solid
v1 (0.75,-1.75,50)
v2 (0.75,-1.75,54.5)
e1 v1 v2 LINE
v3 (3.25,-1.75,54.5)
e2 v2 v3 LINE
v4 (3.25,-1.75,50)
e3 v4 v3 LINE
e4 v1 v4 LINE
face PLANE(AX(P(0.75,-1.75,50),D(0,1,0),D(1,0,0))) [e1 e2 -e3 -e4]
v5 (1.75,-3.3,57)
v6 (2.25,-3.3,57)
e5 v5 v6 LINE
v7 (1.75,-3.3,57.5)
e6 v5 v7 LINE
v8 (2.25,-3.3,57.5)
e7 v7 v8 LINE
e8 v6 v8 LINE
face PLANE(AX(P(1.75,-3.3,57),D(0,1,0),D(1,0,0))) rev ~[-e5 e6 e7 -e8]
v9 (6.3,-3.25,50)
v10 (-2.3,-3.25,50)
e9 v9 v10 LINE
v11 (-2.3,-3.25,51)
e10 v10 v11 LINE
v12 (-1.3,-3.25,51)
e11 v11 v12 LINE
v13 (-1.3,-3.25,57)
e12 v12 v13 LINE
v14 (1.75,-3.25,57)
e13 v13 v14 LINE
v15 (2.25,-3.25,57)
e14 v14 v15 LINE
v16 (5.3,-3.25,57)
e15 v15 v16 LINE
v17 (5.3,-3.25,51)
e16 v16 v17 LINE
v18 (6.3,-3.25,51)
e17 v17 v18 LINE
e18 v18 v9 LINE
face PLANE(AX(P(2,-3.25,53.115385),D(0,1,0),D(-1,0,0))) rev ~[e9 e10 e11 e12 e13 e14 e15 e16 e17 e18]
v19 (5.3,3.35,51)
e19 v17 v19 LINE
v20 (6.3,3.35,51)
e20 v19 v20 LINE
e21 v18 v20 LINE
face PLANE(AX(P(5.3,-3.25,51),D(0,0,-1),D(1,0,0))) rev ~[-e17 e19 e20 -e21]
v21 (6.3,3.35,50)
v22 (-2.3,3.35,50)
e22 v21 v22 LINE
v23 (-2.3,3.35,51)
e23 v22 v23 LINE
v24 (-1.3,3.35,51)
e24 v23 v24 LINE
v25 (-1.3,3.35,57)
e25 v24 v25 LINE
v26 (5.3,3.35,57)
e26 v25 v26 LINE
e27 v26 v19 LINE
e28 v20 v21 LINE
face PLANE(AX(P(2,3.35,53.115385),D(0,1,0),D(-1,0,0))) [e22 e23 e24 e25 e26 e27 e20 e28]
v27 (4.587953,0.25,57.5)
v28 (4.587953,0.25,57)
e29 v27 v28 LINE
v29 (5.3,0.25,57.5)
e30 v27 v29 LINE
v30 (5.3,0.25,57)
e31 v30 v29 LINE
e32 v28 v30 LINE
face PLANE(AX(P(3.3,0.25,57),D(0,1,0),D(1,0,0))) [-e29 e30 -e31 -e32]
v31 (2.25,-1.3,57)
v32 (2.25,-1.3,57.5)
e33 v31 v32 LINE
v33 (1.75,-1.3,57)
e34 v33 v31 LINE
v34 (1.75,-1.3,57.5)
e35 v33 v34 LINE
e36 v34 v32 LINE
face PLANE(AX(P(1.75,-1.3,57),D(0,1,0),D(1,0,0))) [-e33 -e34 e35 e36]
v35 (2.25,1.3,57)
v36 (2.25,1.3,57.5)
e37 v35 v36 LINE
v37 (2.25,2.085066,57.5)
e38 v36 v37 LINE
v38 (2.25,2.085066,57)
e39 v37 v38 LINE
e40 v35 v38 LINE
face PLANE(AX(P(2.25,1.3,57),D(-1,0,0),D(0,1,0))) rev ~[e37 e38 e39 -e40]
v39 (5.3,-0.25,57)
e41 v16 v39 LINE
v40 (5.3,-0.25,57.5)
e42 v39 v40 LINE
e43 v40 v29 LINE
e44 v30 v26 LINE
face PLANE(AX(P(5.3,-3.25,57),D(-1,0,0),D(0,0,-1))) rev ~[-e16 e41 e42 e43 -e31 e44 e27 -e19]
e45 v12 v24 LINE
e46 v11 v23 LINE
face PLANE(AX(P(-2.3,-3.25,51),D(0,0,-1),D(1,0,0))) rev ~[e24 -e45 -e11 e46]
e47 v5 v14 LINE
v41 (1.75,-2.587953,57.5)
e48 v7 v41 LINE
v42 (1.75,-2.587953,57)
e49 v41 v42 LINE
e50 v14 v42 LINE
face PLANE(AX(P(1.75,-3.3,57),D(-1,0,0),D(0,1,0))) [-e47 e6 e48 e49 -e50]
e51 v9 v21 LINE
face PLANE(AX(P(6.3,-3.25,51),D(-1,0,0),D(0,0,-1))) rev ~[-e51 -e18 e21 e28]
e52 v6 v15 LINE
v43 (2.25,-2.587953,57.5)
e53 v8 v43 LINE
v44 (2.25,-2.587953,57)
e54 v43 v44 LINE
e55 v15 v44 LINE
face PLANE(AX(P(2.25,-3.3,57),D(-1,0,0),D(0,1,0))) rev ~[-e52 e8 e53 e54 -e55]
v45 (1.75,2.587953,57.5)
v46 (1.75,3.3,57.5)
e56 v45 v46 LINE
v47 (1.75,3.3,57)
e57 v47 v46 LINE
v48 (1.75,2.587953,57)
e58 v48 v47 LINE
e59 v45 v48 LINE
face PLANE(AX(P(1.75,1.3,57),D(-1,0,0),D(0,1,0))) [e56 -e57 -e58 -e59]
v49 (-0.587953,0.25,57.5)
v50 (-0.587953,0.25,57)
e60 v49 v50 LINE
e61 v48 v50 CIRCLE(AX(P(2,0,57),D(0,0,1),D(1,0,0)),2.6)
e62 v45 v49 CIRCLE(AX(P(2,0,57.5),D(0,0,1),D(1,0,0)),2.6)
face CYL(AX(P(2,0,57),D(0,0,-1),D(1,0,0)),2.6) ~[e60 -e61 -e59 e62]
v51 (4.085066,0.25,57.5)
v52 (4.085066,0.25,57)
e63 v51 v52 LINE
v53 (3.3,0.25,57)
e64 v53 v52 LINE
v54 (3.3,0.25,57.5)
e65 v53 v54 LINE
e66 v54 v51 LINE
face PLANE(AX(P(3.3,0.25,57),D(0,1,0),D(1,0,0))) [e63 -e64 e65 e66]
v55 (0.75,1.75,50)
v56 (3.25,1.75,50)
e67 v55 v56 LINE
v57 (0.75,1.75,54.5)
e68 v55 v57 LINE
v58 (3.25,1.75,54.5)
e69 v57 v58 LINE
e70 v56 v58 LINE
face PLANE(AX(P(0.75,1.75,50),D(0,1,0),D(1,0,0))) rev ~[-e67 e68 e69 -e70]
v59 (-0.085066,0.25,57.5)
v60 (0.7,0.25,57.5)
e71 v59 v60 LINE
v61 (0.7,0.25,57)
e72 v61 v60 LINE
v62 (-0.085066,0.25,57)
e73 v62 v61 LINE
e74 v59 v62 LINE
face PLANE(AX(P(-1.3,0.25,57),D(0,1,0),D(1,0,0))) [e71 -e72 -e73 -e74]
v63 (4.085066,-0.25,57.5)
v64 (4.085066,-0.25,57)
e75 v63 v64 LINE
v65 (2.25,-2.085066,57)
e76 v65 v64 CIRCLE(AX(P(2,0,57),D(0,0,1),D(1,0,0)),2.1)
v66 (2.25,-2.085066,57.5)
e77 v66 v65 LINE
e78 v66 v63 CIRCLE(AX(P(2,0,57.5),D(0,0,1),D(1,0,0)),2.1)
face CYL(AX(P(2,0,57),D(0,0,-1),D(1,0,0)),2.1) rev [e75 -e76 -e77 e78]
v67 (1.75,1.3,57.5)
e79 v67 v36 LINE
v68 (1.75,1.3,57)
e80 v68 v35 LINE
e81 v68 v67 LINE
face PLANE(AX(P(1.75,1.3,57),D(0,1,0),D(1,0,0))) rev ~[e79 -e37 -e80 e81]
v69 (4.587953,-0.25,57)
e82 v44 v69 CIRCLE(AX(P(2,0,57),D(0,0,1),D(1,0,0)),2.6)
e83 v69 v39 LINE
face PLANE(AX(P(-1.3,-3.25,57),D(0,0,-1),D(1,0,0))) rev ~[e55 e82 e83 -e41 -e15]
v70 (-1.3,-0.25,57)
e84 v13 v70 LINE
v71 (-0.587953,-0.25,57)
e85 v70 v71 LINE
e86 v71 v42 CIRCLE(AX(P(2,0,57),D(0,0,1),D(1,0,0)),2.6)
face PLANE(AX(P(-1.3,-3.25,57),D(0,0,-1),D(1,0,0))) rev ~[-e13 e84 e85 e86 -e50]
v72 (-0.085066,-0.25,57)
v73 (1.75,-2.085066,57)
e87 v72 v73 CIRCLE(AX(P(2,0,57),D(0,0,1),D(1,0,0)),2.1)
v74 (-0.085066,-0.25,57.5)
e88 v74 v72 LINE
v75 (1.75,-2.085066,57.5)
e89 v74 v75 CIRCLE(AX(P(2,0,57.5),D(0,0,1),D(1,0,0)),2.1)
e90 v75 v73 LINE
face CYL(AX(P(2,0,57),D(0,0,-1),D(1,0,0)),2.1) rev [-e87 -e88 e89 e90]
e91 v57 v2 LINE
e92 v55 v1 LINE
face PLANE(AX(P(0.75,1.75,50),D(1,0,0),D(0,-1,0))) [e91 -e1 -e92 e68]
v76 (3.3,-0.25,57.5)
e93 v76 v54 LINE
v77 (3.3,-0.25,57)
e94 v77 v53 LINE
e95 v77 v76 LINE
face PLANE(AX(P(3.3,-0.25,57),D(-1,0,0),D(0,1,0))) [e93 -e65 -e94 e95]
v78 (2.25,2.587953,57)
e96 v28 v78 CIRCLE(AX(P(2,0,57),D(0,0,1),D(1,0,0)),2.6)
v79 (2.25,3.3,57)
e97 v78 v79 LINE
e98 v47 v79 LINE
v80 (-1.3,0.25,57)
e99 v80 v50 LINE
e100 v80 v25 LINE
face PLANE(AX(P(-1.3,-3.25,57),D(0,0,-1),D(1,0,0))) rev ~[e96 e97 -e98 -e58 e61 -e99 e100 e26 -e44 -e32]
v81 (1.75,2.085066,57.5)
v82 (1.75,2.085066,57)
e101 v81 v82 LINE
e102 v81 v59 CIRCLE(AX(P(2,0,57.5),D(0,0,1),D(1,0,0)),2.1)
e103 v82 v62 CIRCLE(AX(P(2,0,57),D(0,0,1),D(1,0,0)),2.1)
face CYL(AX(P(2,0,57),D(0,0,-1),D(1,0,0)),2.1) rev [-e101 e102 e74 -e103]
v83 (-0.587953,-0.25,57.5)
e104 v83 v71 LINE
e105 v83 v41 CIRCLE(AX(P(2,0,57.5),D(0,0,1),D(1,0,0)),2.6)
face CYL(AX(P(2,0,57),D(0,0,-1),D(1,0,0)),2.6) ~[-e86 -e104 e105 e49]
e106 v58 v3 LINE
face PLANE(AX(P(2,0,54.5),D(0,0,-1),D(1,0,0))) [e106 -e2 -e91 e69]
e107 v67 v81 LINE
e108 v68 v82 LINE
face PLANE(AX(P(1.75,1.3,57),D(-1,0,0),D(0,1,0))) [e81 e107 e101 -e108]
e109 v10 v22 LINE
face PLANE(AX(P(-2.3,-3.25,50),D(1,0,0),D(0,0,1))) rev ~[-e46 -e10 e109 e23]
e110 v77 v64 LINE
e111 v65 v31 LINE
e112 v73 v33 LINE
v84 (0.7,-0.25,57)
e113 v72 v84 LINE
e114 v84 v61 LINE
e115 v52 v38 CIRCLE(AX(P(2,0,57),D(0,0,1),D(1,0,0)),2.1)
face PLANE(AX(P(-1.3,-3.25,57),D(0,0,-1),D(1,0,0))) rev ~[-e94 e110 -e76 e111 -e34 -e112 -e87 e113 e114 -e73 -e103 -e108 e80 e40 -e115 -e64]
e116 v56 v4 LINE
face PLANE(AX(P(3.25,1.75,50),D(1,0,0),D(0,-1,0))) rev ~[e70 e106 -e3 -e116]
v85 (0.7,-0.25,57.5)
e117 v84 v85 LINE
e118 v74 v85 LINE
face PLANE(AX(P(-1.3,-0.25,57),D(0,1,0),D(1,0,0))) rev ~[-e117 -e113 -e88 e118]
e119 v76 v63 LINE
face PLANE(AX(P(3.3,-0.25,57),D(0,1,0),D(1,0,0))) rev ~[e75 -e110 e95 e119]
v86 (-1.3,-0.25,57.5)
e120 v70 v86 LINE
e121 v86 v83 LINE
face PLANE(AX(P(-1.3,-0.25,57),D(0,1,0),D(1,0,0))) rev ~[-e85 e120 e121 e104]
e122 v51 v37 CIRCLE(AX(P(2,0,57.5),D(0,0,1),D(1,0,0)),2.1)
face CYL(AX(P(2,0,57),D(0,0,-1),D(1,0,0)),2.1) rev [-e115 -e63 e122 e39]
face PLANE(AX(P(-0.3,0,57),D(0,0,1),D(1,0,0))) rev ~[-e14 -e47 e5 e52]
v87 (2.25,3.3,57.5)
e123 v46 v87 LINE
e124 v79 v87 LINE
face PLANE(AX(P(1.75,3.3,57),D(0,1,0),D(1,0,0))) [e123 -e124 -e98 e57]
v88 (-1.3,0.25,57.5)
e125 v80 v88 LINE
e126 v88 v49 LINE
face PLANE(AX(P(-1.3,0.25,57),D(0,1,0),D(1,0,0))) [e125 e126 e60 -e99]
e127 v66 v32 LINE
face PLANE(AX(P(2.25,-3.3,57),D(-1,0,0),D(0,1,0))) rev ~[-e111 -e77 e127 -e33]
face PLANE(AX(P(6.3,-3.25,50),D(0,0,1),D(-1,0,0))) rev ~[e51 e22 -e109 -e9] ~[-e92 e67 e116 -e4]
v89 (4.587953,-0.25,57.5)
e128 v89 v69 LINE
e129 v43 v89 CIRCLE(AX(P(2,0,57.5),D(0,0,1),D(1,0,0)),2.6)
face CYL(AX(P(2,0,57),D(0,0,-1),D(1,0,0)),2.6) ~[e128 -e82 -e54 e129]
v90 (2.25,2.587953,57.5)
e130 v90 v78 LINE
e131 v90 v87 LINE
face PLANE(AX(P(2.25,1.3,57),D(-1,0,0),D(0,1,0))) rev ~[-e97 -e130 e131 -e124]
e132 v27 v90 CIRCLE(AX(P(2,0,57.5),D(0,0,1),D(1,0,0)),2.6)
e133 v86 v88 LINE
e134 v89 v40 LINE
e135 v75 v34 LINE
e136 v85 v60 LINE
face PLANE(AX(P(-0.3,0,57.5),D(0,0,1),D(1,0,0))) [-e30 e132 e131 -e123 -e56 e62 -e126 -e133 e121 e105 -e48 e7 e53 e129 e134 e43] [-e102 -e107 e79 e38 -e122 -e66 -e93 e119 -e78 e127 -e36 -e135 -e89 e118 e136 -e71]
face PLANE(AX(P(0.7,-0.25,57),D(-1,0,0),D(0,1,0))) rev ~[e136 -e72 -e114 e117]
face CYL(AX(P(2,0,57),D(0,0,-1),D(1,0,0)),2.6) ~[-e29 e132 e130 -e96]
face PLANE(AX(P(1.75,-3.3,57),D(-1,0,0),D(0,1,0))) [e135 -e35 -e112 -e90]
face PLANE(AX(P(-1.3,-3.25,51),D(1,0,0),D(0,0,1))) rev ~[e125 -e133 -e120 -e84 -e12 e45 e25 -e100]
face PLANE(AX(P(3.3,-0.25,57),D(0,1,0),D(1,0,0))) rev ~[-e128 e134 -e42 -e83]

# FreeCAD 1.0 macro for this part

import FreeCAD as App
import Part
import Sketcher

V = App.Vector

doc = App.newDocument("Part")
body = doc.addObject("PartDesign::Body", "Body")
body.AllowCompound = True

# Sketch on XY plane
sketch1 = doc.addObject("Sketcher::SketchObject", "Sketch")
body.addObject(sketch1)
sketch1.AttachmentSupport = (doc.XY_Plane, [""])
sketch1.MapMode = "FlatFace"
sketch1.AttachmentOffset = App.Placement(V(0, 0, 20), App.Rotation())
sketch1.addGeometry([
    Part.LineSegment(V(-0.2, 3.3, 0), V(-0.2, 1.3, 0)),  # 0
    Part.LineSegment(V(-0.2, 1.3, 0), V(0.2, 1.3, 0)),  # 1
    Part.LineSegment(V(0.2, 1.3, 0), V(0.2, 3.3, 0)),  # 2
    Part.LineSegment(V(0.2, 3.3, 0), V(-0.2, 3.3, 0)),  # 3
    Part.LineSegment(V(-0.2, -1.3, 0), V(-0.2, -3.3, 0)),  # 4
    Part.LineSegment(V(-0.2, -3.3, 0), V(0.2, -3.3, 0)),  # 5
    Part.LineSegment(V(0.2, -3.3, 0), V(0.2, -1.3, 0)),  # 6
    Part.LineSegment(V(0.2, -1.3, 0), V(-0.2, -1.3, 0)),  # 7
    Part.LineSegment(V(-3.3, 0.2, 0), V(-3.3, -0.2, 0)),  # 8
    Part.LineSegment(V(-3.3, -0.2, 0), V(-1.3, -0.2, 0)),  # 9
    Part.LineSegment(V(-1.3, -0.2, 0), V(-1.3, 0.2, 0)),  # 10
    Part.LineSegment(V(-1.3, 0.2, 0), V(-3.3, 0.2, 0)),  # 11
    Part.LineSegment(V(1.3, 0.2, 0), V(1.3, -0.2, 0)),  # 12
    Part.LineSegment(V(1.3, -0.2, 0), V(3.3, -0.2, 0)),  # 13
    Part.LineSegment(V(3.3, -0.2, 0), V(3.3, 0.2, 0)),  # 14
    Part.LineSegment(V(3.3, 0.2, 0), V(1.3, 0.2, 0)),  # 15
], False)
sketch1.addConstraint([
    Sketcher.Constraint("Coincident", 0, 2, 1, 1),
    Sketcher.Constraint("Coincident", 1, 2, 2, 1),
    Sketcher.Constraint("Coincident", 2, 2, 3, 1),
    Sketcher.Constraint("Coincident", 3, 2, 0, 1),
    Sketcher.Constraint("Coincident", 4, 2, 5, 1),
    Sketcher.Constraint("Coincident", 5, 2, 6, 1),
    Sketcher.Constraint("Coincident", 6, 2, 7, 1),
    Sketcher.Constraint("Coincident", 7, 2, 4, 1),
    Sketcher.Constraint("Coincident", 8, 2, 9, 1),
    Sketcher.Constraint("Coincident", 9, 2, 10, 1),
    Sketcher.Constraint("Coincident", 10, 2, 11, 1),
    Sketcher.Constraint("Coincident", 11, 2, 8, 1),
    Sketcher.Constraint("Coincident", 12, 2, 13, 1),
    Sketcher.Constraint("Coincident", 13, 2, 14, 1),
    Sketcher.Constraint("Coincident", 14, 2, 15, 1),
    Sketcher.Constraint("Coincident", 15, 2, 12, 1),
    Sketcher.Constraint("Vertical", 0),
    Sketcher.Constraint("Horizontal", 1),
    Sketcher.Constraint("Vertical", 2),
    Sketcher.Constraint("Horizontal", 3),
    Sketcher.Constraint("Vertical", 4),
    Sketcher.Constraint("Horizontal", 5),
    Sketcher.Constraint("Vertical", 6),
    Sketcher.Constraint("Horizontal", 7),
    Sketcher.Constraint("Vertical", 8),
    Sketcher.Constraint("Horizontal", 9),
    Sketcher.Constraint("Vertical", 10),
    Sketcher.Constraint("Horizontal", 11),
    Sketcher.Constraint("Vertical", 12),
    Sketcher.Constraint("Horizontal", 13),
    Sketcher.Constraint("Vertical", 14),
    Sketcher.Constraint("Horizontal", 15),
    Sketcher.Constraint("Symmetric", 2, 2, 4, 2, -1, 1),
    Sketcher.Constraint("Symmetric", 0, 2, 6, 2, -1, 1),
    Sketcher.Constraint("Symmetric", 10, 2, 12, 2, -1, 1),
    Sketcher.Constraint("Symmetric", 8, 2, 14, 2, -1, 1),
    Sketcher.Constraint("Horizontal", 9, 2, 12, 2),
    Sketcher.Constraint("Vertical", 3, 2, 4, 2),
    Sketcher.Constraint("Equal", 15, 0),
    Sketcher.Constraint("Equal", 7, 8),
    Sketcher.Constraint("DistanceX", 9, 1, 9, 2, 2.0),
    Sketcher.Constraint("DistanceX", 1, 1, 1, 2, 0.5),
    Sketcher.Constraint("DistanceY", -1, 1, 0, 2, 1.3),
    Sketcher.Constraint("DistanceX", 8, 2, -1, 1, 3.3),
])
pad1 = doc.addObject("PartDesign::Pad", "Pad")
body.addObject(pad1)
pad1.Profile = sketch1
pad1.Length = 0.5
body2 = doc.addObject("PartDesign::Body", "Body001")
body2.AllowCompound = True
doc.recompute()

body.Placement = App.Placement(V(0, 0, -13), App.Rotation(V(0, 0, 1), 0))
boolean = doc.addObject("PartDesign::Boolean", "Boolean")
body2.addObject(boolean)
boolean.Type = "Fuse"
boolean.addObjects([body])
body3 = doc.addObject("PartDesign::Body", "Body002")

# Sketch on XY plane
sketch2 = doc.addObject("Sketcher::SketchObject", "Sketch001")
body3.addObject(sketch2)
sketch2.AttachmentSupport = (doc.getObject("XY_Plane002"), [""])
sketch2.MapMode = "FlatFace"
sketch2.AttachmentOffset = App.Placement(V(0, 0, -10), App.Rotation())
sketch2.addGeometry([
    Part.LineSegment(V(-1.2, -1.8, 0), V(-1.2, 1.8, 0)),
    Part.LineSegment(V(-1.2, 1.8, 0), V(1.2, 1.8, 0)),
    Part.LineSegment(V(1.2, 1.8, 0), V(1.2, -1.8, 0)),
    Part.LineSegment(V(1.2, -1.8, 0), V(-1.2, -1.8, 0)),
], False)
sketch2.addConstraint([
    Sketcher.Constraint("Coincident", 0, 2, 1, 1),
    Sketcher.Constraint("Coincident", 1, 2, 2, 1),
    Sketcher.Constraint("Coincident", 2, 2, 3, 1),
    Sketcher.Constraint("Coincident", 3, 2, 0, 1),
    Sketcher.Constraint("Vertical", 0),
    Sketcher.Constraint("Horizontal", 1),
    Sketcher.Constraint("Vertical", 2),
    Sketcher.Constraint("Horizontal", 3),
    Sketcher.Constraint("Symmetric", 0, 2, 2, 2, -1, 1),
    Sketcher.Constraint("DistanceX", 1, 1, 1, 2, 2.5),
    Sketcher.Constraint("DistanceY", 0, 1, 0, 2, 3.5),
])
pad2 = doc.addObject("PartDesign::Pad", "Pad001")
body3.addObject(pad2)
pad2.Profile = sketch2
pad2.Length = 4.5
body4 = doc.addObject("PartDesign::Body", "Body003")
doc.recompute()

body3.Placement = App.Placement(V(0, 0, 10), App.Rotation(V(0, 0, 1), 0))
boolean2 = doc.addObject("PartDesign::Boolean", "Boolean001")
body4.addObject(boolean2)
boolean2.Type = "Fuse"
boolean2.addObjects([body3])
body5 = doc.addObject("PartDesign::Body", "Body004")

# Sketch on XZ plane
sketch3 = doc.addObject("Sketcher::SketchObject", "Sketch002")
body5.addObject(sketch3)
sketch3.AttachmentSupport = (doc.getObject("XZ_Plane004"), [""])
sketch3.MapMode = "FlatFace"
sketch3.AttachmentOffset = App.Placement(V(0, 0, 10), App.Rotation())
sketch3.addGeometry([
    Part.LineSegment(V(3.3, 7, 0), V(-3.3, 7, 0)),  # 0
    Part.LineSegment(V(-3.3, 7, 0), V(-3.3, 1, 0)),  # 1
    Part.LineSegment(V(-3.3, 1, 0), V(-4.3, 1, 0)),  # 2
    Part.LineSegment(V(-4.3, 1, 0), V(-4.3, 0, 0)),  # 3
    Part.LineSegment(V(-4.3, 0, 0), V(4.3, 0, 0)),  # 4
    Part.LineSegment(V(4.3, 0, 0), V(4.3, 1, 0)),  # 5
    Part.LineSegment(V(4.3, 1, 0), V(3.3, 1, 0)),  # 6
    Part.LineSegment(V(3.3, 1, 0), V(3.3, 7, 0)),  # 7
], False)
sketch3.addConstraint([
    Sketcher.Constraint("Coincident", 0, 2, 1, 1),
    Sketcher.Constraint("Coincident", 1, 2, 2, 1),
    Sketcher.Constraint("Coincident", 2, 2, 3, 1),
    Sketcher.Constraint("Coincident", 3, 2, 4, 1),
    Sketcher.Constraint("Coincident", 4, 2, 5, 1),
    Sketcher.Constraint("Coincident", 5, 2, 6, 1),
    Sketcher.Constraint("Coincident", 6, 2, 7, 1),
    Sketcher.Constraint("Coincident", 7, 2, 0, 1),
    Sketcher.Constraint("Horizontal", 0),
    Sketcher.Constraint("Vertical", 1),
    Sketcher.Constraint("Horizontal", 2),
    Sketcher.Constraint("Vertical", 3),
    Sketcher.Constraint("Horizontal", 4),
    Sketcher.Constraint("Vertical", 5),
    Sketcher.Constraint("Horizontal", 6),
    Sketcher.Constraint("Vertical", 7),
    Sketcher.Constraint("Symmetric", 3, 2, 4, 2, -1, 1),
    Sketcher.Constraint("Symmetric", 1, 2, 6, 2, -2),
    Sketcher.Constraint("Equal", 6, 3),
    Sketcher.Constraint("DistanceX", 2, 2, 2, 1, 1.0),
    Sketcher.Constraint("DistanceY", 1, 2, 1, 1, 6.0),
    Sketcher.Constraint("DistanceX", 0, 2, 0, 1, 6.6),
])
pad3 = doc.addObject("PartDesign::Pad", "Pad002")
body5.addObject(pad3)
pad3.Profile = sketch3
pad3.Length = 6.6
pad3.Reversed = True
body6 = doc.addObject("PartDesign::Body", "Body005")
doc.recompute()

body5.Placement = App.Placement(V(0, 6.75, 0), App.Rotation(V(0, 0, 1), 0))
boolean3 = doc.addObject("PartDesign::Boolean", "Boolean002")
body6.addObject(boolean3)
boolean3.Type = "Fuse"
boolean3.addObjects([body5])
doc.recompute()

boolean4 = doc.addObject("PartDesign::Boolean", "Boolean003")
body6.addObject(boolean4)
boolean4.Type = "Cut"
boolean4.addObjects([body4])
body7 = doc.addObject("PartDesign::Body", "Body006")

# Sketch on XY plane
sketch4 = doc.addObject("Sketcher::SketchObject", "Sketch003")
body7.addObject(sketch4)
sketch4.AttachmentSupport = (doc.getObject("XY_Plane006"), [""])
sketch4.MapMode = "FlatFace"
sketch4.AttachmentOffset = App.Placement(V(0, 0, 20), App.Rotation())
sketch4.addGeometry([
    Part.Circle(V(0, 0, 0), V(0, 0, 1), 2.6),
    Part.Circle(V(0, 0, 0), V(0, 0, 1), 2.1),
], False)
sketch4.addConstraint([
    Sketcher.Constraint("Coincident", 0, 3, -1, 1),
    Sketcher.Constraint("Coincident", 1, 3, -1, 1),
    Sketcher.Constraint("Diameter", 0, 5.2),
    Sketcher.Constraint("Diameter", 1, 4.2),
])
pad4 = doc.addObject("PartDesign::Pad", "Pad003")
body7.addObject(pad4)
pad4.Profile = sketch4
pad4.Length = 0.5
body8 = doc.addObject("PartDesign::Body", "Body007")
doc.recompute()

body7.Placement = App.Placement(V(0, 0, -13), App.Rotation(V(0, 0, 1), 0))
boolean5 = doc.addObject("PartDesign::Boolean", "Boolean004")
body8.addObject(boolean5)
boolean5.Type = "Fuse"
boolean5.addObjects([body7])
doc.recompute()

boolean6 = doc.addObject("PartDesign::Boolean", "Boolean005")
body8.addObject(boolean6)
boolean6.Type = "Fuse"
boolean6.addObjects([body2])
doc.recompute()

boolean7 = doc.addObject("PartDesign::Boolean", "Boolean006")
body8.addObject(boolean7)
boolean7.Type = "Fuse"
boolean7.addObjects([body6])
body9 = doc.addObject("PartDesign::Body", "Body008")
doc.recompute()

body8.Placement = App.Placement(V(2, 0, 50), App.Rotation(V(0, 0, 1), 0))
boolean8 = doc.addObject("PartDesign::Boolean", "Boolean007")
body9.addObject(boolean8)
boolean8.Type = "Fuse"
boolean8.addObjects([body8])

doc.recompute()
